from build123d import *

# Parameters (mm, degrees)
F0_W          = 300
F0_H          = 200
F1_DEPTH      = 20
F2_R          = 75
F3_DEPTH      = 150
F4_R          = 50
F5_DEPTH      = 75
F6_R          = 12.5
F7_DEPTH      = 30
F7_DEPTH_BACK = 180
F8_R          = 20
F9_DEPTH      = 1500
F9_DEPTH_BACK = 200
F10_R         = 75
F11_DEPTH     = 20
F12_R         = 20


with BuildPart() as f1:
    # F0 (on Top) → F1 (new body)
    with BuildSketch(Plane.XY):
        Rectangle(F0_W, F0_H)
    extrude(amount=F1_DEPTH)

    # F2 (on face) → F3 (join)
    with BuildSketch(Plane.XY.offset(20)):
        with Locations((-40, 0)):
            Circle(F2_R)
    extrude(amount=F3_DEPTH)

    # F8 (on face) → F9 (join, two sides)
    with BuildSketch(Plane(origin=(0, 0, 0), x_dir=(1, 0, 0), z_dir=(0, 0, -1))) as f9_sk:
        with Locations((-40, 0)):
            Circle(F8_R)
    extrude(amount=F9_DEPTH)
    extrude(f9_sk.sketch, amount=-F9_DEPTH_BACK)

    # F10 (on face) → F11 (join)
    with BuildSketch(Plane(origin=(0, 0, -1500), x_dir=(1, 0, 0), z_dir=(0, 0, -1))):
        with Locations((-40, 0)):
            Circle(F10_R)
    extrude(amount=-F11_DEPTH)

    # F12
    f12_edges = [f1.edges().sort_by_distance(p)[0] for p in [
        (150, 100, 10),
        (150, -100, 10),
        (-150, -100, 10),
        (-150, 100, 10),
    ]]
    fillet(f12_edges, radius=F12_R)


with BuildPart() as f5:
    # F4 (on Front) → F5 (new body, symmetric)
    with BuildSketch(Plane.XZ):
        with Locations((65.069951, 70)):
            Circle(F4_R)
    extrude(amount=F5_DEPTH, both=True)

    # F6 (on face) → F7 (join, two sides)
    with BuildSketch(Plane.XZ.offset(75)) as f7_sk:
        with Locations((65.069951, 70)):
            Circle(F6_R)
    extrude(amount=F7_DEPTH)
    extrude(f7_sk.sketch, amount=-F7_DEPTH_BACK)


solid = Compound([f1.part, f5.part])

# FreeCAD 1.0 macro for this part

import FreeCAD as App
import Part
import Sketcher
from FreeCAD import Vector


def edges_at(feature, points):
    """Names of the edges that pass closest to the given points."""
    edges = feature.Shape.Edges
    near = lambda p: min(range(len(edges)), key=lambda i: edges[i].distToShape(Part.Vertex(*p))[0])
    return sorted({f"Edge{near(p) + 1}" for p in points})


def add_polygon(sketch, points):
    """Adds a closed chain of lines whose ends are joined by coincident constraints."""
    first, n = sketch.GeometryCount, len(points)
    for a, b in zip(points, points[1:] + points[:1]):
        sketch.addGeometry(Part.LineSegment(App.Vector(*a, 0), App.Vector(*b, 0)), False)
    for i in range(n):
        sketch.addConstraint(Sketcher.Constraint("Coincident", first + i, 2, first + (i + 1) % n, 1))

doc = App.newDocument("Part")
params = doc.addObject("Spreadsheet::Sheet", "Params")
for row, (alias, value) in enumerate([
    ("sketch1_width", "300 mm"),
    ("sketch1_height", "200 mm"),
    ("pad1_length", "20 mm"),
    ("sketch2_diameter", "150 mm"),
    ("pad2_length", "150 mm"),
    ("sketch3_diameter", "40 mm"),
    ("pad3_length", "1500 mm"),
    ("pad3_length2", "200 mm"),
    ("sketch4_diameter", "150 mm"),
    ("pad4_length", "20 mm"),
    ("fillet_radius", "20 mm"),
    ("sketch5_diameter", "100 mm"),
    ("pad5_length", "150 mm"),
    ("sketch6_diameter", "25 mm"),
    ("pad6_length", "30 mm"),
    ("pad6_length2", "180 mm"),
], start=1):
    params.set(f"A{row}", alias)
    params.set(f"B{row}", "=" + value)
    params.setAlias(f"B{row}", alias)

body = doc.addObject("PartDesign::Body", "Body")

# Sketch on XY plane
sketch1 = body.newObject("Sketcher::SketchObject", "Sketch")
sketch1.AttachmentSupport = (doc.getObject("XY_Plane"), [""])
sketch1.MapMode = "FlatFace"
add_polygon(sketch1, [(-150, 100), (-150, -100), (150, -100), (150, 100)])  # lines 0-3
sketch1.addConstraint([
    Sketcher.Constraint("Vertical", 0),
    Sketcher.Constraint("Horizontal", 1),
    Sketcher.Constraint("Vertical", 2),
    Sketcher.Constraint("Horizontal", 3),
    Sketcher.Constraint("Symmetric", 0, 2, 2, 2, -1, 1),
    Sketcher.Constraint("DistanceX", 1, 1, 1, 2, 300.0),
    Sketcher.Constraint("DistanceY", 0, 2, 0, 1, 200.0),
])
sketch1.setExpression("Constraints[9]", "Params.sketch1_width")
sketch1.setExpression("Constraints[10]", "Params.sketch1_height")
pad1 = body.newObject("PartDesign::Pad", "Pad")
pad1.Profile = sketch1
pad1.setExpression("Length", "Params.pad1_length")

# Sketch on XY plane
sketch2 = body.newObject("Sketcher::SketchObject", "Sketch001")
sketch2.AttachmentSupport = (doc.getObject("XY_Plane"), [""])
sketch2.MapMode = "FlatFace"
sketch2.AttachmentOffset = App.Placement(Vector(0, 0, 20), App.Rotation())
sketch2.addGeometry(Part.Circle(Vector(-40, 0, 0), Vector(0, 0, 1), 75), False)
sketch2.addConstraint([
    Sketcher.Constraint("PointOnObject", 0, 3, -1),
    Sketcher.Constraint("Diameter", 0, 150.0),
    Sketcher.Constraint("DistanceX", 0, 3, -1, 1, 40.0),
])
sketch2.setExpression("Constraints[1]", "Params.sketch2_diameter")
pad2 = body.newObject("PartDesign::Pad", "Pad001")
pad2.Profile = sketch2
pad2.setExpression("Length", "Params.pad2_length")

# Sketch on XY plane
sketch3 = body.newObject("Sketcher::SketchObject", "Sketch002")
sketch3.AttachmentSupport = (doc.getObject("XY_Plane"), [""])
sketch3.MapMode = "FlatFace"
sketch3.addGeometry(Part.Circle(Vector(-40, 0, 0), Vector(0, 0, 1), 20), False)
sketch3.addConstraint([
    Sketcher.Constraint("PointOnObject", 0, 3, -1),
    Sketcher.Constraint("Diameter", 0, 40.0),
    Sketcher.Constraint("DistanceX", 0, 3, -1, 1, 40.0),
])
sketch3.setExpression("Constraints[1]", "Params.sketch3_diameter")
pad3 = body.newObject("PartDesign::Pad", "Pad002")
pad3.Profile = sketch3
pad3.Type = "TwoLengths"
pad3.setExpression("Length", "Params.pad3_length")
pad3.setExpression("Length2", "Params.pad3_length2")
pad3.Reversed = True

# Sketch on XY plane
sketch4 = body.newObject("Sketcher::SketchObject", "Sketch003")
sketch4.AttachmentSupport = (doc.getObject("XY_Plane"), [""])
sketch4.MapMode = "FlatFace"
sketch4.AttachmentOffset = App.Placement(Vector(0, 0, -1500), App.Rotation())
sketch4.addGeometry(Part.Circle(Vector(-40, 0, 0), Vector(0, 0, 1), 75), False)
sketch4.addConstraint([
    Sketcher.Constraint("PointOnObject", 0, 3, -1),
    Sketcher.Constraint("Diameter", 0, 150.0),
    Sketcher.Constraint("DistanceX", 0, 3, -1, 1, 40.0),
])
sketch4.setExpression("Constraints[1]", "Params.sketch4_diameter")
pad4 = body.newObject("PartDesign::Pad", "Pad003")
pad4.Profile = sketch4
pad4.setExpression("Length", "Params.pad4_length")
doc.recompute()

fillet = body.newObject("PartDesign::Fillet", "Fillet")
fillet.Base = (pad4, edges_at(pad4, [
    (150, 100, 10),
    (150, -100, 10),
    (-150, -100, 10),
    (-150, 100, 10),
]))
fillet.setExpression("Radius", "Params.fillet_radius")
body2 = doc.addObject("PartDesign::Body", "Body001")

# Sketch on XZ plane
sketch5 = body2.newObject("Sketcher::SketchObject", "Sketch004")
sketch5.AttachmentSupport = (doc.getObject("XZ_Plane001"), [""])
sketch5.MapMode = "FlatFace"
sketch5.addGeometry(Part.Circle(Vector(65, 70, 0), Vector(0, 0, 1), 50), False)
sketch5.addConstraint([
    Sketcher.Constraint("Diameter", 0, 100.0),
    Sketcher.Constraint("DistanceY", -1, 1, 0, 3, 70.0),
    Sketcher.Constraint("DistanceX", -1, 1, 0, 3, 65.069951),
])
sketch5.setExpression("Constraints[0]", "Params.sketch5_diameter")
pad5 = body2.newObject("PartDesign::Pad", "Pad004")
pad5.Profile = sketch5
pad5.setExpression("Length", "Params.pad5_length")
pad5.Midplane = True

# Sketch on XZ plane
sketch6 = body2.newObject("Sketcher::SketchObject", "Sketch005")
sketch6.AttachmentSupport = (doc.getObject("XZ_Plane001"), [""])
sketch6.MapMode = "FlatFace"
sketch6.AttachmentOffset = App.Placement(Vector(0, 0, 75), App.Rotation())
sketch6.addGeometry(Part.Circle(Vector(65, 70, 0), Vector(0, 0, 1), 12), False)
sketch6.addConstraint([
    Sketcher.Constraint("Diameter", 0, 25.0),
    Sketcher.Constraint("DistanceY", -1, 1, 0, 3, 70.0),
    Sketcher.Constraint("DistanceX", -1, 1, 0, 3, 65.069951),
])
sketch6.setExpression("Constraints[0]", "Params.sketch6_diameter")
pad6 = body2.newObject("PartDesign::Pad", "Pad005")
pad6.Profile = sketch6
pad6.Type = "TwoLengths"
pad6.setExpression("Length", "Params.pad6_length")
pad6.setExpression("Length2", "Params.pad6_length2")

doc.recompute()
